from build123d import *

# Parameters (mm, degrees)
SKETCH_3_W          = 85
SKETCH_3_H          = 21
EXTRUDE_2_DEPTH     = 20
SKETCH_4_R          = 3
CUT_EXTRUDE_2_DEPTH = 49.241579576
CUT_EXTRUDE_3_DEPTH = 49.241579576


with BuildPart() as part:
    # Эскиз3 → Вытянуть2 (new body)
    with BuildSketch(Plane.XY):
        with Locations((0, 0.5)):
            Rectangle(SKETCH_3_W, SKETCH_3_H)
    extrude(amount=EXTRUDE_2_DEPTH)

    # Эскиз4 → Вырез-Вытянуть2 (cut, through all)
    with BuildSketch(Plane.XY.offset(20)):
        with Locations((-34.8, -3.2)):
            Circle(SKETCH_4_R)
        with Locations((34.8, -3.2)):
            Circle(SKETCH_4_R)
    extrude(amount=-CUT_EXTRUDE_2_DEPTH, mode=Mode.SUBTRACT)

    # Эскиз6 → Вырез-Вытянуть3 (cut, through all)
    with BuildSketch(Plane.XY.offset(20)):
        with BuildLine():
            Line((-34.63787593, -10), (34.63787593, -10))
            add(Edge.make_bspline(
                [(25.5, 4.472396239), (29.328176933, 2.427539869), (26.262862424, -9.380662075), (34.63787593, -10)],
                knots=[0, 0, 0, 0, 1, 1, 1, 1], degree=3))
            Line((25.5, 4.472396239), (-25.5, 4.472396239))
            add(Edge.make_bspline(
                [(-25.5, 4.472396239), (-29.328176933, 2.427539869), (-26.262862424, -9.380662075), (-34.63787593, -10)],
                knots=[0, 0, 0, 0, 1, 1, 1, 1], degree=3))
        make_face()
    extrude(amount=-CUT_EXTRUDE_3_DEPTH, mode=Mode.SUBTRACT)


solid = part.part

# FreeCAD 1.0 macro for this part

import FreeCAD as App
import Part
import Sketcher

doc = App.newDocument("Part")
body = doc.addObject("PartDesign::Body", "Body")

# Sketch on XY plane
sketch1 = body.newObject("Sketcher::SketchObject", "Sketch")
sketch1.AttachmentSupport = (doc.getObject("XY_Plane"), [""])
sketch1.MapMode = "FlatFace"
sketch1.addGeometry([
    Part.LineSegment(App.Vector(-42.5, 11, 0), App.Vector(-42.5, -10, 0)),
    Part.LineSegment(App.Vector(-42.5, -10, 0), App.Vector(42.5, -10, 0)),
    Part.LineSegment(App.Vector(42.5, -10, 0), App.Vector(42.5, 11, 0)),
    Part.LineSegment(App.Vector(42.5, 11, 0), App.Vector(-42.5, 11, 0)),
], False)
sketch1.addConstraint([
    Sketcher.Constraint("Coincident", 0, 2, 1, 1),
    Sketcher.Constraint("Coincident", 1, 2, 2, 1),
    Sketcher.Constraint("Coincident", 2, 2, 3, 1),
    Sketcher.Constraint("Coincident", 3, 2, 0, 1),
    Sketcher.Constraint("Vertical", 0),
    Sketcher.Constraint("Horizontal", 1),
    Sketcher.Constraint("Vertical", 2),
    Sketcher.Constraint("Horizontal", 3),
    Sketcher.Constraint("DistanceX", 1, 1, 1, 2, 85.0),
    Sketcher.Constraint("DistanceY", 0, 2, 0, 1, 21.0),
    Sketcher.Constraint("DistanceY", 0, 2, -1, 1, 10.0),
    Sketcher.Constraint("DistanceX", 0, 2, -1, 1, 42.5),
])
pad1 = body.newObject("PartDesign::Pad", "Pad")
pad1.Profile = sketch1
pad1.Length = 20

# Sketch on XY plane
sketch2 = body.newObject("Sketcher::SketchObject", "Sketch001")
sketch2.AttachmentSupport = (doc.getObject("XY_Plane"), [""])
sketch2.MapMode = "FlatFace"
sketch2.AttachmentOffset = App.Placement(App.Vector(0, 0, 20), App.Rotation())
sketch2.addGeometry([
    Part.Circle(App.Vector(-34.8, -3.2, 0), App.Vector(0, 0, 1), 3),
    Part.Circle(App.Vector(34.8, -3.2, 0), App.Vector(0, 0, 1), 3),
], False)
sketch2.addConstraint([
    Sketcher.Constraint("Equal", 0, 1),
    Sketcher.Constraint("Symmetric", 0, 3, 1, 3, -2),
    Sketcher.Constraint("Diameter", 0, 6.0),
    Sketcher.Constraint("DistanceX", 0, 3, -1, 1, 34.8),
    Sketcher.Constraint("DistanceY", 0, 3, -1, 1, 3.2),
])
pocket1 = body.newObject("PartDesign::Pocket", "Pocket")
pocket1.Profile = sketch2
pocket1.Type = "ThroughAll"

# Sketch on XY plane
sketch3 = body.newObject("Sketcher::SketchObject", "Sketch002")
sketch3.AttachmentSupport = (doc.getObject("XY_Plane"), [""])
sketch3.MapMode = "FlatFace"
sketch3.AttachmentOffset = App.Placement(App.Vector(0, 0, 20), App.Rotation())
sketch3.addGeometry([
    Part.LineSegment(App.Vector(-34.637876, -10, 0), App.Vector(34.637876, -10, 0)),
    Part.BSplineCurve([App.Vector(25.5, 4.472396, 0), App.Vector(29.328177, 2.42754, 0), App.Vector(26.262862, -9.380662, 0), App.Vector(34.637876, -10, 0)], [4, 4], [0, 1], False, 3, [1, 1, 1, 1], False),
    Part.LineSegment(App.Vector(25.5, 4.472396, 0), App.Vector(-25.5, 4.472396, 0)),
    Part.BSplineCurve([App.Vector(-25.5, 4.472396, 0), App.Vector(-29.328177, 2.42754, 0), App.Vector(-26.262862, -9.380662, 0), App.Vector(-34.637876, -10, 0)], [4, 4], [0, 1], False, 3, [1, 1, 1, 1], False),
], False)
sketch3.addConstraint([
    Sketcher.Constraint("Block", 1),
    Sketcher.Constraint("Block", 3),
    Sketcher.Constraint("Coincident", 0, 2, 1, 2),
    Sketcher.Constraint("Coincident", 1, 1, 2, 1),
    Sketcher.Constraint("Coincident", 2, 2, 3, 1),
    Sketcher.Constraint("Coincident", 3, 2, 0, 1),
])
pocket2 = body.newObject("PartDesign::Pocket", "Pocket001")
pocket2.Profile = sketch3
pocket2.Type = "ThroughAll"

doc.recompute()
